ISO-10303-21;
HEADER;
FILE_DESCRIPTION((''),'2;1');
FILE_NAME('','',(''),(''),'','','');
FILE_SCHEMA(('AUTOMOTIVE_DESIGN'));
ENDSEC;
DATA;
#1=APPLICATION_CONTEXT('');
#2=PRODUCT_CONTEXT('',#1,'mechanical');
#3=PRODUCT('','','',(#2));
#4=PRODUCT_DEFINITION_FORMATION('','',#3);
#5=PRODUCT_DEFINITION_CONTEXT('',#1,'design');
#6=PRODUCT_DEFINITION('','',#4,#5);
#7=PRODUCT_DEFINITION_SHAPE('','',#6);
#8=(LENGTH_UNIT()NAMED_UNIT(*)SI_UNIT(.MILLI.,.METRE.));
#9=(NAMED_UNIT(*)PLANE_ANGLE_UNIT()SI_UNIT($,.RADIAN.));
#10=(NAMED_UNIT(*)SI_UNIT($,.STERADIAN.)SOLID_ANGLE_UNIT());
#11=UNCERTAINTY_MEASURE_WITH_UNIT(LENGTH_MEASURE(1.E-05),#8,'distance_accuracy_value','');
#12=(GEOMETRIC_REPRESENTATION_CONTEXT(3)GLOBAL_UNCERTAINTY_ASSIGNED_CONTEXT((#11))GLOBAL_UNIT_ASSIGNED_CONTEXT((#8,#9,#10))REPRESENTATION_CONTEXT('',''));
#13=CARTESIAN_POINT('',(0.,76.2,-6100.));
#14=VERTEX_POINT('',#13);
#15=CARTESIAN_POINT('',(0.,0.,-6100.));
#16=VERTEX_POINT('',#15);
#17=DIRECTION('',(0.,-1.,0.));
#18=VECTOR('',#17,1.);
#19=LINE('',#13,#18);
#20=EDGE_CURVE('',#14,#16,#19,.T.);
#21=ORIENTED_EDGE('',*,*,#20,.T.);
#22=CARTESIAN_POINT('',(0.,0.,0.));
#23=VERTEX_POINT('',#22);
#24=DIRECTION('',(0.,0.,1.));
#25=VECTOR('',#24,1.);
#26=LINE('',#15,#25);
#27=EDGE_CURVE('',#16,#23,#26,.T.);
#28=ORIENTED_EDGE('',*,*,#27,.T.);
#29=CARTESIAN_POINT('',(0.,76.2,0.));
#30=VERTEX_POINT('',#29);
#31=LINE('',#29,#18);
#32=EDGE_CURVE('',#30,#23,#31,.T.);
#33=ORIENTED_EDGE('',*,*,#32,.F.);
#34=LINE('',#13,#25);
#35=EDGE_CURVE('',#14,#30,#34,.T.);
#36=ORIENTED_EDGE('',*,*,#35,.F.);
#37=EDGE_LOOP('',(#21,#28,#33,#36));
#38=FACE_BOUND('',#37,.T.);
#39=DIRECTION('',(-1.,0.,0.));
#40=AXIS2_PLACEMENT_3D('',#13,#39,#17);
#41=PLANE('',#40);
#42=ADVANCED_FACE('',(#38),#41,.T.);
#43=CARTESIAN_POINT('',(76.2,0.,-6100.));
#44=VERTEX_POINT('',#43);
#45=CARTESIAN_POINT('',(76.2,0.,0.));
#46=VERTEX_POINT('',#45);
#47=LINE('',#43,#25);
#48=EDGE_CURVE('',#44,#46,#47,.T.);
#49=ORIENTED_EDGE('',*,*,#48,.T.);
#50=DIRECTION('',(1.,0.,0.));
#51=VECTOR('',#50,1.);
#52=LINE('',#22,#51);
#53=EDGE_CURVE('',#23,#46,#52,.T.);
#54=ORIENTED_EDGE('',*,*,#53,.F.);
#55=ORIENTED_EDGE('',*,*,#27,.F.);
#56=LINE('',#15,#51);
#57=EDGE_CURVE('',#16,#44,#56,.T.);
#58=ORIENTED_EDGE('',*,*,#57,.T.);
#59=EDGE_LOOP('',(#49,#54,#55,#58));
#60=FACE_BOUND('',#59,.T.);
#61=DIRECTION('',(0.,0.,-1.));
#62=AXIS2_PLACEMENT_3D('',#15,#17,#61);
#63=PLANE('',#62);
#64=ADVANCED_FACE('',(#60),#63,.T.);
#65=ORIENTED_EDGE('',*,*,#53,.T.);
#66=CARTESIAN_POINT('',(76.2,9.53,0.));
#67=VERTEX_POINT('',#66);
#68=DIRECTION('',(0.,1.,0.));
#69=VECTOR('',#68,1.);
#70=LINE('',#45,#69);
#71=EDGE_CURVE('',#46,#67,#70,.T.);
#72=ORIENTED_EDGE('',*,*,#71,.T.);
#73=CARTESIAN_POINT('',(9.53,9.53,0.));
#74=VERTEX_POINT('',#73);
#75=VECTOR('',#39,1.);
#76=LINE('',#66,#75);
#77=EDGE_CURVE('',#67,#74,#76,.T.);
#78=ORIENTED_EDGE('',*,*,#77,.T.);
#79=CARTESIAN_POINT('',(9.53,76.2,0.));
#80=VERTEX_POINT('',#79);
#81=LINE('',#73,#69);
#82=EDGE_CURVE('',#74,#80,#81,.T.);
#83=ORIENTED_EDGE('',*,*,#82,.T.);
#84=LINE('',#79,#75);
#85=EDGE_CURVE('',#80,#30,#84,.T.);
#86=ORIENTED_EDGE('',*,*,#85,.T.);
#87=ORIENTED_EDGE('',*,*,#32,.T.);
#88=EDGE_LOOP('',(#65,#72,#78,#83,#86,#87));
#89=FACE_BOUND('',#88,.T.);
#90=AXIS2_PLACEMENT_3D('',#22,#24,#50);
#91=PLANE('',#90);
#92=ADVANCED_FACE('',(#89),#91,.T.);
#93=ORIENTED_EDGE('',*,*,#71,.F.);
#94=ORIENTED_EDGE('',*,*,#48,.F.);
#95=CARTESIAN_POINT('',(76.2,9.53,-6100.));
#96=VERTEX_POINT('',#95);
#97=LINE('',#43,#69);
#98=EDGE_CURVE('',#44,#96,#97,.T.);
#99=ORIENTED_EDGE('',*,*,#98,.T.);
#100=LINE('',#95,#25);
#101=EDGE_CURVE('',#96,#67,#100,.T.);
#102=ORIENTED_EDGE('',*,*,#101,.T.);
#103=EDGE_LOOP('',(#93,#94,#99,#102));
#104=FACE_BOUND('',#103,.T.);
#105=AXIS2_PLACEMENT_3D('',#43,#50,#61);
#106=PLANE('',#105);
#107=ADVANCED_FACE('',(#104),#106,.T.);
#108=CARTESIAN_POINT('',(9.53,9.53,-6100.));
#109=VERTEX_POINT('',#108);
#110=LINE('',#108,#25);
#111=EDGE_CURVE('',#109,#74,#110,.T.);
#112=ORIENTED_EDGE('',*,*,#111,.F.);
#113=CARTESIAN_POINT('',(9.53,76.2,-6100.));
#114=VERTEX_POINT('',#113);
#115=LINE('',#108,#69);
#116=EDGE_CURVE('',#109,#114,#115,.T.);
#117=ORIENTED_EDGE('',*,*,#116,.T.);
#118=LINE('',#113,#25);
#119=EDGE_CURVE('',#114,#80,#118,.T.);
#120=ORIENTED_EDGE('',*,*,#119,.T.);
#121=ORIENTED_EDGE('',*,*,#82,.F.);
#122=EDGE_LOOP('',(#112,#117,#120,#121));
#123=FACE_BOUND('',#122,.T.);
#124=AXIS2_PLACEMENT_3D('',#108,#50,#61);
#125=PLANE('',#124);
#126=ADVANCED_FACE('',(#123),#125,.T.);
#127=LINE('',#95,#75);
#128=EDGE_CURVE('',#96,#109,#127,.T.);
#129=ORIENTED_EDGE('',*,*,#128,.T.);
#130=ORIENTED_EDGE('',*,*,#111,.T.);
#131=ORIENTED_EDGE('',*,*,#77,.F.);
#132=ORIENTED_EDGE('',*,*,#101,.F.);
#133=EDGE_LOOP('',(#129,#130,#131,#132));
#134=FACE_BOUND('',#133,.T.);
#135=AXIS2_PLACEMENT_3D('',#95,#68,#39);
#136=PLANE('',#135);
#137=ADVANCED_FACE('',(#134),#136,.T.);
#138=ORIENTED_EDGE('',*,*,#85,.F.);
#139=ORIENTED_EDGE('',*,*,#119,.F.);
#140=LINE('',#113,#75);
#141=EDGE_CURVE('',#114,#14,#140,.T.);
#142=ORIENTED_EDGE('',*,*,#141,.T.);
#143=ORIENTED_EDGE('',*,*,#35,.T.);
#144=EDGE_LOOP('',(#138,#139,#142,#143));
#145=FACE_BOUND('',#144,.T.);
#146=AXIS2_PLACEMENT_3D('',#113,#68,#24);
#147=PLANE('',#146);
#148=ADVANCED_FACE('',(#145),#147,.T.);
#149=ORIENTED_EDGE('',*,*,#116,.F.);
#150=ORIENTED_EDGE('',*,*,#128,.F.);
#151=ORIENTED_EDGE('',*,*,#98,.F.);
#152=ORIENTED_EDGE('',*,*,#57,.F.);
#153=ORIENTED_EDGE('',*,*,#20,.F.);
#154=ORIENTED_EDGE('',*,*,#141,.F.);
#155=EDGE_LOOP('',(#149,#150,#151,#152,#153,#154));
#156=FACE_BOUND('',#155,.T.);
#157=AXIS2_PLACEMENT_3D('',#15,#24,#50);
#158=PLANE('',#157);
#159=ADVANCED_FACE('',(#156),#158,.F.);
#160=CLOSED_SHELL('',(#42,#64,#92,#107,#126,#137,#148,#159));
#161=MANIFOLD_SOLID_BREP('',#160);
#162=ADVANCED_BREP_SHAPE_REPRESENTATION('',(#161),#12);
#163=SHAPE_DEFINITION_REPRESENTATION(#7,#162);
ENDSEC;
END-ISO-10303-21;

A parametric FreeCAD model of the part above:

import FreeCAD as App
import Part
import Sketcher

V = App.Vector
Q = App.Units.Quantity

doc = App.newDocument("Part")
body = doc.addObject("PartDesign::Body", "Body")

# Sketch on XY plane
sketch1 = body.newObject("Sketcher::SketchObject", "Sketch")
sketch1.AttachmentSupport = (doc.getObject("XY_Plane"), [""])
sketch1.MapMode = "FlatFace"
sketch1.addGeometry([
    Part.LineSegment(V(0, 76, 0), V(0, 0, 0)),  # 0
    Part.LineSegment(V(0, 0, 0), V(76, 0, 0)),  # 1
    Part.LineSegment(V(76, 0, 0), V(76, 10, 0)),  # 2
    Part.LineSegment(V(76, 10, 0), V(10, 10, 0)),  # 3
    Part.LineSegment(V(10, 10, 0), V(10, 76, 0)),  # 4
    Part.LineSegment(V(10, 76, 0), V(0, 76, 0)),  # 5
], False)
sketch1.addConstraint([
    Sketcher.Constraint("Coincident", 0, 2, 1, 1),
    Sketcher.Constraint("Coincident", 1, 2, 2, 1),
    Sketcher.Constraint("Coincident", 2, 2, 3, 1),
    Sketcher.Constraint("Coincident", 3, 2, 4, 1),
    Sketcher.Constraint("Coincident", 4, 2, 5, 1),
    Sketcher.Constraint("Coincident", 5, 2, 0, 1),
    Sketcher.Constraint("Vertical", 0),
    Sketcher.Constraint("Horizontal", 1),
    Sketcher.Constraint("Vertical", 2),
    Sketcher.Constraint("Horizontal", 3),
    Sketcher.Constraint("Vertical", 4),
    Sketcher.Constraint("Horizontal", 5),
    Sketcher.Constraint("Coincident", 0, 2, -1, 1),
    Sketcher.Constraint("Equal", 1, 0),
    Sketcher.Constraint("Equal", 5, 2),
    Sketcher.Constraint("DistanceX", 1, 1, 1, 2, Q("76.2 mm")),
    Sketcher.Constraint("DistanceX", 3, 2, 3, 1, Q("66.67 mm")),
])
pad1 = body.newObject("PartDesign::Pad", "Pad")
pad1.Profile = sketch1
pad1.Length = 6100
pad1.Reversed = True

doc.recompute()
